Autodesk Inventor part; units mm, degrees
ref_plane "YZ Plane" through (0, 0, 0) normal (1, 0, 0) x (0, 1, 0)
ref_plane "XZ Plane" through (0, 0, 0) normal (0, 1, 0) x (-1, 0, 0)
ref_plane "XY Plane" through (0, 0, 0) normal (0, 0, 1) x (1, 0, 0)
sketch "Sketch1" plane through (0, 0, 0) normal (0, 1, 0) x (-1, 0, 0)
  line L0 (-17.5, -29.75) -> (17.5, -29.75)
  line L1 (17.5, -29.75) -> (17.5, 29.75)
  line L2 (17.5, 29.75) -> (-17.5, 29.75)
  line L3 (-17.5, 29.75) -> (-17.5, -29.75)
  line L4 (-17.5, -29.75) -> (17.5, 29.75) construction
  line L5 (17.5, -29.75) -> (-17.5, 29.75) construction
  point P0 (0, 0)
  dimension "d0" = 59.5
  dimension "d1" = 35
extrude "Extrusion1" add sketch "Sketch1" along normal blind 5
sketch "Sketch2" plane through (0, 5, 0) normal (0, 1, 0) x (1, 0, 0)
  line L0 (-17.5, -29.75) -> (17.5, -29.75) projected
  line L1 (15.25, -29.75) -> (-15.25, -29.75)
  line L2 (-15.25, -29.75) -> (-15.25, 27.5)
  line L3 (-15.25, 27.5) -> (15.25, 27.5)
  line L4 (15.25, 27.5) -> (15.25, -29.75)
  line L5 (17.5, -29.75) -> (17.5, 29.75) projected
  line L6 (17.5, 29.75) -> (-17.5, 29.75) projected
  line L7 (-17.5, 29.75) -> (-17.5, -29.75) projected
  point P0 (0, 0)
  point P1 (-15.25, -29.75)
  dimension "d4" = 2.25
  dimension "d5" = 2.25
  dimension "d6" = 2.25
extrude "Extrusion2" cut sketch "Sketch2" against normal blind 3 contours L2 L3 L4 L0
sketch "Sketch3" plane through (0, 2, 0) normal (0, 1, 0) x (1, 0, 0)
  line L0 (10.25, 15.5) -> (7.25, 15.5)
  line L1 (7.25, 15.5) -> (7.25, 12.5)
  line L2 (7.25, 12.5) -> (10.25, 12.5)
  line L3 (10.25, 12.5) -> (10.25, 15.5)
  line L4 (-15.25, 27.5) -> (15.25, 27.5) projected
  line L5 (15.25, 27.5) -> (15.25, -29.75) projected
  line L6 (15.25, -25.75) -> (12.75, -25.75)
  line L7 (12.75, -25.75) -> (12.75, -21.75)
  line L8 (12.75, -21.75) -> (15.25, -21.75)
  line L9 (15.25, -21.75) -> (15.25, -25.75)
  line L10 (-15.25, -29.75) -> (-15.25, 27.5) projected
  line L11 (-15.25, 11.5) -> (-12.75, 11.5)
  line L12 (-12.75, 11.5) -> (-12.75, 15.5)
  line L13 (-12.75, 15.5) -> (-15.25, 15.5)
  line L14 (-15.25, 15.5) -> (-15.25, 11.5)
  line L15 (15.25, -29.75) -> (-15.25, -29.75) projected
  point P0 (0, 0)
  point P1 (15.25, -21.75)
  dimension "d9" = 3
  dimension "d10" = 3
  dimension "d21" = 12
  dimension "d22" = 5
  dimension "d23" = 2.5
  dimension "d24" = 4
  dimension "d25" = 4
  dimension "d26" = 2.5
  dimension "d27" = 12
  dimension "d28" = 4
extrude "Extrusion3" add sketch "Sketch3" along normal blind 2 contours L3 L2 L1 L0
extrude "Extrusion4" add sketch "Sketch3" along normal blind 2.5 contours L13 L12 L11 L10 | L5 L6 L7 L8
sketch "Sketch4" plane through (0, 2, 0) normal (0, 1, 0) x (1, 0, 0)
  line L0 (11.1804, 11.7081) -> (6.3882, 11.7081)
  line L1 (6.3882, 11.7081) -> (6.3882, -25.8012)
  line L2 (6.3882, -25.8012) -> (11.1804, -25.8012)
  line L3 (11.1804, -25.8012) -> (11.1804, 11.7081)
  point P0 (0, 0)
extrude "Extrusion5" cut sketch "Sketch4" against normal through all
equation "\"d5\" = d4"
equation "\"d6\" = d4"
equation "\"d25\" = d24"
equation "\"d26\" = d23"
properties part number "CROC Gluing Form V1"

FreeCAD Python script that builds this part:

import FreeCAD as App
import Part
import Sketcher
Q = App.Units.Quantity

doc = App.newDocument("Part")
body = doc.addObject("PartDesign::Body", "Body")

# Sketch on XZ plane
sketch1 = body.newObject("Sketcher::SketchObject", "Sketch")
sketch1.AttachmentSupport = (doc.getObject("XZ_Plane"), [""])
sketch1.MapMode = "FlatFace"
sketch1.addGeometry([
    Part.LineSegment(App.Vector(17.5, 29.75, 0), App.Vector(17.5, -29.75, 0)),
    Part.LineSegment(App.Vector(17.5, -29.75, 0), App.Vector(-17.5, -29.75, 0)),
    Part.LineSegment(App.Vector(-17.5, -29.75, 0), App.Vector(-17.5, 29.75, 0)),
    Part.LineSegment(App.Vector(-17.5, 29.75, 0), App.Vector(17.5, 29.75, 0)),
], False)
sketch1.addConstraint([
    Sketcher.Constraint("Coincident", 0, 2, 1, 1),
    Sketcher.Constraint("Coincident", 1, 2, 2, 1),
    Sketcher.Constraint("Coincident", 2, 2, 3, 1),
    Sketcher.Constraint("Coincident", 3, 2, 0, 1),
    Sketcher.Constraint("Vertical", 0),
    Sketcher.Constraint("Horizontal", 1),
    Sketcher.Constraint("Vertical", 2),
    Sketcher.Constraint("Horizontal", 3),
    Sketcher.Constraint("Symmetric", 0, 2, 2, 2, -1, 1),
    Sketcher.Constraint("DistanceX", 1, 2, 1, 1, Q("35 mm")),
    Sketcher.Constraint("DistanceY", 0, 2, 0, 1, Q("59.5 mm")),
])
pad1 = body.newObject("PartDesign::Pad", "Pad")
pad1.Profile = sketch1
pad1.Length = 5
pad1.Reversed = True

# Sketch on XZ plane
sketch2 = body.newObject("Sketcher::SketchObject", "Sketch001")
sketch2.AttachmentSupport = (doc.getObject("XZ_Plane"), [""])
sketch2.MapMode = "FlatFace"
sketch2.AttachmentOffset = App.Placement(App.Vector(0, 0, -5), App.Rotation())
sketch2.addGeometry([
    Part.LineSegment(App.Vector(-15.25, -27.5, 0), App.Vector(-15.25, 29.75, 0)),
    Part.LineSegment(App.Vector(-15.25, 29.75, 0), App.Vector(15.25, 29.75, 0)),
    Part.LineSegment(App.Vector(15.25, 29.75, 0), App.Vector(15.25, -27.5, 0)),
    Part.LineSegment(App.Vector(15.25, -27.5, 0), App.Vector(-15.25, -27.5, 0)),
], False)
sketch2.addConstraint([
    Sketcher.Constraint("Coincident", 0, 2, 1, 1),
    Sketcher.Constraint("Coincident", 1, 2, 2, 1),
    Sketcher.Constraint("Coincident", 2, 2, 3, 1),
    Sketcher.Constraint("Coincident", 3, 2, 0, 1),
    Sketcher.Constraint("Vertical", 0),
    Sketcher.Constraint("Horizontal", 1),
    Sketcher.Constraint("Vertical", 2),
    Sketcher.Constraint("Horizontal", 3),
    Sketcher.Constraint("DistanceX", 1, 1, 1, 2, Q("30.5 mm")),
    Sketcher.Constraint("DistanceY", 0, 1, 0, 2, Q("57.25 mm")),
    Sketcher.Constraint("DistanceY", 2, 2, -1, 1, Q("27.5 mm")),
    Sketcher.Constraint("DistanceX", 0, 2, -1, 1, Q("15.25 mm")),
])
pocket1 = body.newObject("PartDesign::Pocket", "Pocket")
pocket1.Profile = sketch2
pocket1.Length = 3
pocket1.Reversed = True

# Sketch on XZ plane
sketch3 = body.newObject("Sketcher::SketchObject", "Sketch002")
sketch3.AttachmentSupport = (doc.getObject("XZ_Plane"), [""])
sketch3.MapMode = "FlatFace"
sketch3.AttachmentOffset = App.Placement(App.Vector(0, 0, -2), App.Rotation())
sketch3.addGeometry([
    Part.LineSegment(App.Vector(10.25, -12.5, 0), App.Vector(10.25, -15.5, 0)),
    Part.LineSegment(App.Vector(10.25, -15.5, 0), App.Vector(7.25, -15.5, 0)),
    Part.LineSegment(App.Vector(7.25, -15.5, 0), App.Vector(7.25, -12.5, 0)),
    Part.LineSegment(App.Vector(7.25, -12.5, 0), App.Vector(10.25, -12.5, 0)),
], False)
sketch3.addConstraint([
    Sketcher.Constraint("Coincident", 0, 2, 1, 1),
    Sketcher.Constraint("Coincident", 1, 2, 2, 1),
    Sketcher.Constraint("Coincident", 2, 2, 3, 1),
    Sketcher.Constraint("Coincident", 3, 2, 0, 1),
    Sketcher.Constraint("Vertical", 0),
    Sketcher.Constraint("Horizontal", 1),
    Sketcher.Constraint("Vertical", 2),
    Sketcher.Constraint("Horizontal", 3),
    Sketcher.Constraint("Equal", 3, 0),
    Sketcher.Constraint("DistanceX", 1, 2, 1, 1, Q("3 mm")),
    Sketcher.Constraint("DistanceY", 0, 2, -1, 1, Q("15.5 mm")),
    Sketcher.Constraint("DistanceX", -1, 1, 0, 2, Q("10.25 mm")),
])
pad2 = body.newObject("PartDesign::Pad", "Pad001")
pad2.Profile = sketch3
pad2.Length = 2
pad2.Reversed = True

# Sketch on XZ plane
sketch4 = body.newObject("Sketcher::SketchObject", "Sketch003")
sketch4.AttachmentSupport = (doc.getObject("XZ_Plane"), [""])
sketch4.MapMode = "FlatFace"
sketch4.AttachmentOffset = App.Placement(App.Vector(0, 0, -2), App.Rotation())
sketch4.addGeometry([
    Part.LineSegment(App.Vector(-12.75, -15.5, 0), App.Vector(-15.25, -15.5, 0)),  # 0
    Part.LineSegment(App.Vector(-15.25, -15.5, 0), App.Vector(-15.25, -11.5, 0)),  # 1
    Part.LineSegment(App.Vector(-15.25, -11.5, 0), App.Vector(-12.75, -11.5, 0)),  # 2
    Part.LineSegment(App.Vector(-12.75, -11.5, 0), App.Vector(-12.75, -15.5, 0)),  # 3
    Part.LineSegment(App.Vector(15.25, 25.75, 0), App.Vector(15.25, 21.75, 0)),  # 4
    Part.LineSegment(App.Vector(15.25, 21.75, 0), App.Vector(12.75, 21.75, 0)),  # 5
    Part.LineSegment(App.Vector(12.75, 21.75, 0), App.Vector(12.75, 25.75, 0)),  # 6
    Part.LineSegment(App.Vector(12.75, 25.75, 0), App.Vector(15.25, 25.75, 0)),  # 7
], False)
sketch4.addConstraint([
    Sketcher.Constraint("Coincident", 0, 2, 1, 1),
    Sketcher.Constraint("Coincident", 1, 2, 2, 1),
    Sketcher.Constraint("Coincident", 2, 2, 3, 1),
    Sketcher.Constraint("Coincident", 3, 2, 0, 1),
    Sketcher.Constraint("Coincident", 4, 2, 5, 1),
    Sketcher.Constraint("Coincident", 5, 2, 6, 1),
    Sketcher.Constraint("Coincident", 6, 2, 7, 1),
    Sketcher.Constraint("Coincident", 7, 2, 4, 1),
    Sketcher.Constraint("Horizontal", 0),
    Sketcher.Constraint("Vertical", 1),
    Sketcher.Constraint("Horizontal", 2),
    Sketcher.Constraint("Vertical", 3),
    Sketcher.Constraint("Vertical", 4),
    Sketcher.Constraint("Horizontal", 5),
    Sketcher.Constraint("Vertical", 6),
    Sketcher.Constraint("Horizontal", 7),
    Sketcher.Constraint("Equal", 2, 5),
    Sketcher.Constraint("Equal", 3, 4),
    Sketcher.Constraint("DistanceY", 1, 1, 1, 2, Q("4 mm")),
    Sketcher.Constraint("DistanceX", 0, 2, 0, 1, Q("2.5 mm")),
    Sketcher.Constraint("DistanceX", 2, 2, 4, 2, Q("28 mm")),
    Sketcher.Constraint("DistanceY", 0, 2, -1, 1, Q("15.5 mm")),
    Sketcher.Constraint("DistanceX", 0, 2, -1, 1, Q("15.25 mm")),
    Sketcher.Constraint("DistanceY", -1, 1, 4, 2, Q("21.75 mm")),
])
pad3 = body.newObject("PartDesign::Pad", "Pad002")
pad3.Profile = sketch4
pad3.Length = 2.5
pad3.Reversed = True

# Sketch on XZ plane
sketch5 = body.newObject("Sketcher::SketchObject", "Sketch004")
sketch5.AttachmentSupport = (doc.getObject("XZ_Plane"), [""])
sketch5.MapMode = "FlatFace"
sketch5.AttachmentOffset = App.Placement(App.Vector(0, 0, -2), App.Rotation())
sketch5.addGeometry([
    Part.LineSegment(App.Vector(11.1804, 25.8012, 0), App.Vector(11.1804, -11.7081, 0)),
    Part.LineSegment(App.Vector(11.1804, -11.7081, 0), App.Vector(6.3882, -11.7081, 0)),
    Part.LineSegment(App.Vector(6.3882, -11.7081, 0), App.Vector(6.3882, 25.8012, 0)),
    Part.LineSegment(App.Vector(6.3882, 25.8012, 0), App.Vector(11.1804, 25.8012, 0)),
], False)
sketch5.addConstraint([
    Sketcher.Constraint("Coincident", 0, 2, 1, 1),
    Sketcher.Constraint("Coincident", 1, 2, 2, 1),
    Sketcher.Constraint("Coincident", 2, 2, 3, 1),
    Sketcher.Constraint("Coincident", 3, 2, 0, 1),
    Sketcher.Constraint("Vertical", 0),
    Sketcher.Constraint("Horizontal", 1),
    Sketcher.Constraint("Vertical", 2),
    Sketcher.Constraint("Horizontal", 3),
    Sketcher.Constraint("DistanceX", 1, 2, 1, 1, Q("4.7922 mm")),
    Sketcher.Constraint("DistanceY", 0, 2, 0, 1, Q("37.5093 mm")),
    Sketcher.Constraint("DistanceY", 0, 2, -1, 1, Q("11.708 mm")),
    Sketcher.Constraint("DistanceX", -1, 1, 0, 2, Q("11.1804 mm")),
])
pocket2 = body.newObject("PartDesign::Pocket", "Pocket001")
pocket2.Profile = sketch5
pocket2.Type = "ThroughAll"
pocket2.Reversed = True

doc.recompute()
